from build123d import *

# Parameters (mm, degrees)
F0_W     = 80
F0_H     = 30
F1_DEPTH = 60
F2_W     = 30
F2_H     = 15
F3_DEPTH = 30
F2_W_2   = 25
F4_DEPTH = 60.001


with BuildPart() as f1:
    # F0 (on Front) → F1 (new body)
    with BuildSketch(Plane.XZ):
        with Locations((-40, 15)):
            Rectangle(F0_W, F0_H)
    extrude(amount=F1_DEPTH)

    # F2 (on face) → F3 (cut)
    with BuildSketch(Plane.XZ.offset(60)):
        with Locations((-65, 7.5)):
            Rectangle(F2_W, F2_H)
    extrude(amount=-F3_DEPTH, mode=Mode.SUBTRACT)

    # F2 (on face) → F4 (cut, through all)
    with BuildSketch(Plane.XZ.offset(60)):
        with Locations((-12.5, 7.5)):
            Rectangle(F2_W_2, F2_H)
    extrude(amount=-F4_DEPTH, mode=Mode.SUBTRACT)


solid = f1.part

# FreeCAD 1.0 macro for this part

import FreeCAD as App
import Part
import Sketcher
from FreeCAD import Vector


def add_polygon(sketch, points):
    """Adds a closed chain of lines whose ends are joined by coincident constraints."""
    first, n = sketch.GeometryCount, len(points)
    for a, b in zip(points, points[1:] + points[:1]):
        sketch.addGeometry(Part.LineSegment(App.Vector(*a, 0), App.Vector(*b, 0)), False)
    for i in range(n):
        sketch.addConstraint(Sketcher.Constraint("Coincident", first + i, 2, first + (i + 1) % n, 1))

doc = App.newDocument("Part")
body = doc.addObject("PartDesign::Body", "Body")

# Sketch on XZ plane
sketch1 = body.newObject("Sketcher::SketchObject", "Sketch")
sketch1.AttachmentSupport = (doc.getObject("XZ_Plane"), [""])
sketch1.MapMode = "FlatFace"
add_polygon(sketch1, [(-80, 30), (-80, 0), (0, 0), (0, 30)])  # lines 0-3
sketch1.addConstraint([
    Sketcher.Constraint("Vertical", 0),
    Sketcher.Constraint("Horizontal", 1),
    Sketcher.Constraint("Vertical", 2),
    Sketcher.Constraint("Horizontal", 3),
    Sketcher.Constraint("Coincident", 1, 2, -1, 1),
    Sketcher.Constraint("DistanceX", 1, 1, 1, 2, 80.0),
    Sketcher.Constraint("DistanceY", 0, 2, 0, 1, 30.0),
])
pad1 = body.newObject("PartDesign::Pad", "Pad")
pad1.Profile = sketch1
pad1.Length = 60

# Sketch on XZ plane
sketch2 = body.newObject("Sketcher::SketchObject", "Sketch001")
sketch2.AttachmentSupport = (doc.getObject("XZ_Plane"), [""])
sketch2.MapMode = "FlatFace"
sketch2.AttachmentOffset = App.Placement(Vector(0, 0, 60), App.Rotation())
add_polygon(sketch2, [(-80, 15), (-80, 0), (-50, 0), (-50, 15)])  # lines 0-3
sketch2.addConstraint([
    Sketcher.Constraint("Vertical", 0),
    Sketcher.Constraint("Horizontal", 1),
    Sketcher.Constraint("Vertical", 2),
    Sketcher.Constraint("Horizontal", 3),
    Sketcher.Constraint("PointOnObject", 0, 2, -1),
    Sketcher.Constraint("DistanceX", 1, 1, 1, 2, 30.0),
    Sketcher.Constraint("DistanceY", 0, 2, 0, 1, 15.0),
    Sketcher.Constraint("DistanceX", 0, 2, -1, 1, 80.0),
])
pocket1 = body.newObject("PartDesign::Pocket", "Pocket")
pocket1.Profile = sketch2
pocket1.Length = 30

# Sketch on XZ plane
sketch3 = body.newObject("Sketcher::SketchObject", "Sketch002")
sketch3.AttachmentSupport = (doc.getObject("XZ_Plane"), [""])
sketch3.MapMode = "FlatFace"
sketch3.AttachmentOffset = App.Placement(Vector(0, 0, 60), App.Rotation())
add_polygon(sketch3, [(-25, 15), (-25, 0), (0, 0), (0, 15)])  # lines 0-3
sketch3.addConstraint([
    Sketcher.Constraint("Vertical", 0),
    Sketcher.Constraint("Horizontal", 1),
    Sketcher.Constraint("Vertical", 2),
    Sketcher.Constraint("Horizontal", 3),
    Sketcher.Constraint("Coincident", 1, 2, -1, 1),
    Sketcher.Constraint("DistanceX", 1, 1, 1, 2, 25.0),
    Sketcher.Constraint("DistanceY", 0, 2, 0, 1, 15.0),
])
pocket2 = body.newObject("PartDesign::Pocket", "Pocket001")
pocket2.Profile = sketch3
pocket2.Type = "ThroughAll"

doc.recompute()
